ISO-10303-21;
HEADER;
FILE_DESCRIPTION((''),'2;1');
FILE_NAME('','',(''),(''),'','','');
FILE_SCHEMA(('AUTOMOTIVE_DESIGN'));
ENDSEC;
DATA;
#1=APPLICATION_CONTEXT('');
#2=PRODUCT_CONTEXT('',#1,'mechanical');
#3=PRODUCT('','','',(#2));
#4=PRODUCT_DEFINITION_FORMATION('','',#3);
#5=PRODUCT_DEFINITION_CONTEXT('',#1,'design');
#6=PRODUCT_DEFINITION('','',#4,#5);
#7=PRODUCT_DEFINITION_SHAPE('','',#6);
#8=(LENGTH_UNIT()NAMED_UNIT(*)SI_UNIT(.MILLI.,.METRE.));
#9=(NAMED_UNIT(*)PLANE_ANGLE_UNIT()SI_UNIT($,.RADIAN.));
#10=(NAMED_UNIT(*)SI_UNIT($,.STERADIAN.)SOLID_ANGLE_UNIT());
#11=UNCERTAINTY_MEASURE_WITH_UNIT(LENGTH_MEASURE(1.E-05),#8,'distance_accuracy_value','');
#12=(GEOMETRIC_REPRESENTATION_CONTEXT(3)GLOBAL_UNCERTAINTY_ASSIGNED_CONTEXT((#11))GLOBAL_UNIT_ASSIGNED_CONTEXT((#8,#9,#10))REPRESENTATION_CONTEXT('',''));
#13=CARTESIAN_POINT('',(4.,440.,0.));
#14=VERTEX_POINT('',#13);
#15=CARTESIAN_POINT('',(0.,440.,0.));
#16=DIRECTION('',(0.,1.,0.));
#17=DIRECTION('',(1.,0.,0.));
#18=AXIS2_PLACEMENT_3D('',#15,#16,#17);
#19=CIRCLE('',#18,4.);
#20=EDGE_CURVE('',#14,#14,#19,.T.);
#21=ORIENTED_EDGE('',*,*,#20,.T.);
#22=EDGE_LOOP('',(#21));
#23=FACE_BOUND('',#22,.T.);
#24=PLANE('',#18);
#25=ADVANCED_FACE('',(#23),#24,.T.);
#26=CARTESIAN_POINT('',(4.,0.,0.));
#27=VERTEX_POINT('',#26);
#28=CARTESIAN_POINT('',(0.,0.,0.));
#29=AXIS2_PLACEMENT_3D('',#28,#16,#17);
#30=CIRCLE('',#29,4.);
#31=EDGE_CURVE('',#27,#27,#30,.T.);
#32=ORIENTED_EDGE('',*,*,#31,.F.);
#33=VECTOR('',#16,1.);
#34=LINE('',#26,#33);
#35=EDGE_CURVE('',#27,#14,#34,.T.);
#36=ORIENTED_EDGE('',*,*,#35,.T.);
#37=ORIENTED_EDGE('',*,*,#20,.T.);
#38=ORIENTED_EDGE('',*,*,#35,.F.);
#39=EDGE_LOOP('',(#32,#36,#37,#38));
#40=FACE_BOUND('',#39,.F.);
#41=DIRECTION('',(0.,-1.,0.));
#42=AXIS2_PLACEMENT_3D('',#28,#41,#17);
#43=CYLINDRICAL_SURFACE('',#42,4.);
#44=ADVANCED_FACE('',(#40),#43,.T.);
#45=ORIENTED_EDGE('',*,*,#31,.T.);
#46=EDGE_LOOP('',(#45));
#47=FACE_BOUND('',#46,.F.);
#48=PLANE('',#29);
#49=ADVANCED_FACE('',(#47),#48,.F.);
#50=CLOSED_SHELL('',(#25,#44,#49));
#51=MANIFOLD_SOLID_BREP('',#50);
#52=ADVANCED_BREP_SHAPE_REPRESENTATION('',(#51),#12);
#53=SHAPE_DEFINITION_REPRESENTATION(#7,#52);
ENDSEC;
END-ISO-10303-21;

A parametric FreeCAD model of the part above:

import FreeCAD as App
import Part
import Sketcher

V = App.Vector

doc = App.newDocument("Part")
body = doc.addObject("PartDesign::Body", "Body")

# Sketch on XZ plane
sketch1 = body.newObject("Sketcher::SketchObject", "Sketch")
sketch1.AttachmentSupport = (doc.getObject("XZ_Plane"), [""])
sketch1.MapMode = "FlatFace"
sketch1.addGeometry(Part.Circle(V(0, 0, 0), V(0, 0, 1), 4), False)
sketch1.addConstraint(Sketcher.Constraint("Coincident", 0, 3, -1, 1))
sketch1.addConstraint(Sketcher.Constraint("Diameter", 0, 8.0))
pad1 = body.newObject("PartDesign::Pad", "Pad")
pad1.Profile = sketch1
pad1.Length = 440
pad1.Reversed = True

doc.recompute()
